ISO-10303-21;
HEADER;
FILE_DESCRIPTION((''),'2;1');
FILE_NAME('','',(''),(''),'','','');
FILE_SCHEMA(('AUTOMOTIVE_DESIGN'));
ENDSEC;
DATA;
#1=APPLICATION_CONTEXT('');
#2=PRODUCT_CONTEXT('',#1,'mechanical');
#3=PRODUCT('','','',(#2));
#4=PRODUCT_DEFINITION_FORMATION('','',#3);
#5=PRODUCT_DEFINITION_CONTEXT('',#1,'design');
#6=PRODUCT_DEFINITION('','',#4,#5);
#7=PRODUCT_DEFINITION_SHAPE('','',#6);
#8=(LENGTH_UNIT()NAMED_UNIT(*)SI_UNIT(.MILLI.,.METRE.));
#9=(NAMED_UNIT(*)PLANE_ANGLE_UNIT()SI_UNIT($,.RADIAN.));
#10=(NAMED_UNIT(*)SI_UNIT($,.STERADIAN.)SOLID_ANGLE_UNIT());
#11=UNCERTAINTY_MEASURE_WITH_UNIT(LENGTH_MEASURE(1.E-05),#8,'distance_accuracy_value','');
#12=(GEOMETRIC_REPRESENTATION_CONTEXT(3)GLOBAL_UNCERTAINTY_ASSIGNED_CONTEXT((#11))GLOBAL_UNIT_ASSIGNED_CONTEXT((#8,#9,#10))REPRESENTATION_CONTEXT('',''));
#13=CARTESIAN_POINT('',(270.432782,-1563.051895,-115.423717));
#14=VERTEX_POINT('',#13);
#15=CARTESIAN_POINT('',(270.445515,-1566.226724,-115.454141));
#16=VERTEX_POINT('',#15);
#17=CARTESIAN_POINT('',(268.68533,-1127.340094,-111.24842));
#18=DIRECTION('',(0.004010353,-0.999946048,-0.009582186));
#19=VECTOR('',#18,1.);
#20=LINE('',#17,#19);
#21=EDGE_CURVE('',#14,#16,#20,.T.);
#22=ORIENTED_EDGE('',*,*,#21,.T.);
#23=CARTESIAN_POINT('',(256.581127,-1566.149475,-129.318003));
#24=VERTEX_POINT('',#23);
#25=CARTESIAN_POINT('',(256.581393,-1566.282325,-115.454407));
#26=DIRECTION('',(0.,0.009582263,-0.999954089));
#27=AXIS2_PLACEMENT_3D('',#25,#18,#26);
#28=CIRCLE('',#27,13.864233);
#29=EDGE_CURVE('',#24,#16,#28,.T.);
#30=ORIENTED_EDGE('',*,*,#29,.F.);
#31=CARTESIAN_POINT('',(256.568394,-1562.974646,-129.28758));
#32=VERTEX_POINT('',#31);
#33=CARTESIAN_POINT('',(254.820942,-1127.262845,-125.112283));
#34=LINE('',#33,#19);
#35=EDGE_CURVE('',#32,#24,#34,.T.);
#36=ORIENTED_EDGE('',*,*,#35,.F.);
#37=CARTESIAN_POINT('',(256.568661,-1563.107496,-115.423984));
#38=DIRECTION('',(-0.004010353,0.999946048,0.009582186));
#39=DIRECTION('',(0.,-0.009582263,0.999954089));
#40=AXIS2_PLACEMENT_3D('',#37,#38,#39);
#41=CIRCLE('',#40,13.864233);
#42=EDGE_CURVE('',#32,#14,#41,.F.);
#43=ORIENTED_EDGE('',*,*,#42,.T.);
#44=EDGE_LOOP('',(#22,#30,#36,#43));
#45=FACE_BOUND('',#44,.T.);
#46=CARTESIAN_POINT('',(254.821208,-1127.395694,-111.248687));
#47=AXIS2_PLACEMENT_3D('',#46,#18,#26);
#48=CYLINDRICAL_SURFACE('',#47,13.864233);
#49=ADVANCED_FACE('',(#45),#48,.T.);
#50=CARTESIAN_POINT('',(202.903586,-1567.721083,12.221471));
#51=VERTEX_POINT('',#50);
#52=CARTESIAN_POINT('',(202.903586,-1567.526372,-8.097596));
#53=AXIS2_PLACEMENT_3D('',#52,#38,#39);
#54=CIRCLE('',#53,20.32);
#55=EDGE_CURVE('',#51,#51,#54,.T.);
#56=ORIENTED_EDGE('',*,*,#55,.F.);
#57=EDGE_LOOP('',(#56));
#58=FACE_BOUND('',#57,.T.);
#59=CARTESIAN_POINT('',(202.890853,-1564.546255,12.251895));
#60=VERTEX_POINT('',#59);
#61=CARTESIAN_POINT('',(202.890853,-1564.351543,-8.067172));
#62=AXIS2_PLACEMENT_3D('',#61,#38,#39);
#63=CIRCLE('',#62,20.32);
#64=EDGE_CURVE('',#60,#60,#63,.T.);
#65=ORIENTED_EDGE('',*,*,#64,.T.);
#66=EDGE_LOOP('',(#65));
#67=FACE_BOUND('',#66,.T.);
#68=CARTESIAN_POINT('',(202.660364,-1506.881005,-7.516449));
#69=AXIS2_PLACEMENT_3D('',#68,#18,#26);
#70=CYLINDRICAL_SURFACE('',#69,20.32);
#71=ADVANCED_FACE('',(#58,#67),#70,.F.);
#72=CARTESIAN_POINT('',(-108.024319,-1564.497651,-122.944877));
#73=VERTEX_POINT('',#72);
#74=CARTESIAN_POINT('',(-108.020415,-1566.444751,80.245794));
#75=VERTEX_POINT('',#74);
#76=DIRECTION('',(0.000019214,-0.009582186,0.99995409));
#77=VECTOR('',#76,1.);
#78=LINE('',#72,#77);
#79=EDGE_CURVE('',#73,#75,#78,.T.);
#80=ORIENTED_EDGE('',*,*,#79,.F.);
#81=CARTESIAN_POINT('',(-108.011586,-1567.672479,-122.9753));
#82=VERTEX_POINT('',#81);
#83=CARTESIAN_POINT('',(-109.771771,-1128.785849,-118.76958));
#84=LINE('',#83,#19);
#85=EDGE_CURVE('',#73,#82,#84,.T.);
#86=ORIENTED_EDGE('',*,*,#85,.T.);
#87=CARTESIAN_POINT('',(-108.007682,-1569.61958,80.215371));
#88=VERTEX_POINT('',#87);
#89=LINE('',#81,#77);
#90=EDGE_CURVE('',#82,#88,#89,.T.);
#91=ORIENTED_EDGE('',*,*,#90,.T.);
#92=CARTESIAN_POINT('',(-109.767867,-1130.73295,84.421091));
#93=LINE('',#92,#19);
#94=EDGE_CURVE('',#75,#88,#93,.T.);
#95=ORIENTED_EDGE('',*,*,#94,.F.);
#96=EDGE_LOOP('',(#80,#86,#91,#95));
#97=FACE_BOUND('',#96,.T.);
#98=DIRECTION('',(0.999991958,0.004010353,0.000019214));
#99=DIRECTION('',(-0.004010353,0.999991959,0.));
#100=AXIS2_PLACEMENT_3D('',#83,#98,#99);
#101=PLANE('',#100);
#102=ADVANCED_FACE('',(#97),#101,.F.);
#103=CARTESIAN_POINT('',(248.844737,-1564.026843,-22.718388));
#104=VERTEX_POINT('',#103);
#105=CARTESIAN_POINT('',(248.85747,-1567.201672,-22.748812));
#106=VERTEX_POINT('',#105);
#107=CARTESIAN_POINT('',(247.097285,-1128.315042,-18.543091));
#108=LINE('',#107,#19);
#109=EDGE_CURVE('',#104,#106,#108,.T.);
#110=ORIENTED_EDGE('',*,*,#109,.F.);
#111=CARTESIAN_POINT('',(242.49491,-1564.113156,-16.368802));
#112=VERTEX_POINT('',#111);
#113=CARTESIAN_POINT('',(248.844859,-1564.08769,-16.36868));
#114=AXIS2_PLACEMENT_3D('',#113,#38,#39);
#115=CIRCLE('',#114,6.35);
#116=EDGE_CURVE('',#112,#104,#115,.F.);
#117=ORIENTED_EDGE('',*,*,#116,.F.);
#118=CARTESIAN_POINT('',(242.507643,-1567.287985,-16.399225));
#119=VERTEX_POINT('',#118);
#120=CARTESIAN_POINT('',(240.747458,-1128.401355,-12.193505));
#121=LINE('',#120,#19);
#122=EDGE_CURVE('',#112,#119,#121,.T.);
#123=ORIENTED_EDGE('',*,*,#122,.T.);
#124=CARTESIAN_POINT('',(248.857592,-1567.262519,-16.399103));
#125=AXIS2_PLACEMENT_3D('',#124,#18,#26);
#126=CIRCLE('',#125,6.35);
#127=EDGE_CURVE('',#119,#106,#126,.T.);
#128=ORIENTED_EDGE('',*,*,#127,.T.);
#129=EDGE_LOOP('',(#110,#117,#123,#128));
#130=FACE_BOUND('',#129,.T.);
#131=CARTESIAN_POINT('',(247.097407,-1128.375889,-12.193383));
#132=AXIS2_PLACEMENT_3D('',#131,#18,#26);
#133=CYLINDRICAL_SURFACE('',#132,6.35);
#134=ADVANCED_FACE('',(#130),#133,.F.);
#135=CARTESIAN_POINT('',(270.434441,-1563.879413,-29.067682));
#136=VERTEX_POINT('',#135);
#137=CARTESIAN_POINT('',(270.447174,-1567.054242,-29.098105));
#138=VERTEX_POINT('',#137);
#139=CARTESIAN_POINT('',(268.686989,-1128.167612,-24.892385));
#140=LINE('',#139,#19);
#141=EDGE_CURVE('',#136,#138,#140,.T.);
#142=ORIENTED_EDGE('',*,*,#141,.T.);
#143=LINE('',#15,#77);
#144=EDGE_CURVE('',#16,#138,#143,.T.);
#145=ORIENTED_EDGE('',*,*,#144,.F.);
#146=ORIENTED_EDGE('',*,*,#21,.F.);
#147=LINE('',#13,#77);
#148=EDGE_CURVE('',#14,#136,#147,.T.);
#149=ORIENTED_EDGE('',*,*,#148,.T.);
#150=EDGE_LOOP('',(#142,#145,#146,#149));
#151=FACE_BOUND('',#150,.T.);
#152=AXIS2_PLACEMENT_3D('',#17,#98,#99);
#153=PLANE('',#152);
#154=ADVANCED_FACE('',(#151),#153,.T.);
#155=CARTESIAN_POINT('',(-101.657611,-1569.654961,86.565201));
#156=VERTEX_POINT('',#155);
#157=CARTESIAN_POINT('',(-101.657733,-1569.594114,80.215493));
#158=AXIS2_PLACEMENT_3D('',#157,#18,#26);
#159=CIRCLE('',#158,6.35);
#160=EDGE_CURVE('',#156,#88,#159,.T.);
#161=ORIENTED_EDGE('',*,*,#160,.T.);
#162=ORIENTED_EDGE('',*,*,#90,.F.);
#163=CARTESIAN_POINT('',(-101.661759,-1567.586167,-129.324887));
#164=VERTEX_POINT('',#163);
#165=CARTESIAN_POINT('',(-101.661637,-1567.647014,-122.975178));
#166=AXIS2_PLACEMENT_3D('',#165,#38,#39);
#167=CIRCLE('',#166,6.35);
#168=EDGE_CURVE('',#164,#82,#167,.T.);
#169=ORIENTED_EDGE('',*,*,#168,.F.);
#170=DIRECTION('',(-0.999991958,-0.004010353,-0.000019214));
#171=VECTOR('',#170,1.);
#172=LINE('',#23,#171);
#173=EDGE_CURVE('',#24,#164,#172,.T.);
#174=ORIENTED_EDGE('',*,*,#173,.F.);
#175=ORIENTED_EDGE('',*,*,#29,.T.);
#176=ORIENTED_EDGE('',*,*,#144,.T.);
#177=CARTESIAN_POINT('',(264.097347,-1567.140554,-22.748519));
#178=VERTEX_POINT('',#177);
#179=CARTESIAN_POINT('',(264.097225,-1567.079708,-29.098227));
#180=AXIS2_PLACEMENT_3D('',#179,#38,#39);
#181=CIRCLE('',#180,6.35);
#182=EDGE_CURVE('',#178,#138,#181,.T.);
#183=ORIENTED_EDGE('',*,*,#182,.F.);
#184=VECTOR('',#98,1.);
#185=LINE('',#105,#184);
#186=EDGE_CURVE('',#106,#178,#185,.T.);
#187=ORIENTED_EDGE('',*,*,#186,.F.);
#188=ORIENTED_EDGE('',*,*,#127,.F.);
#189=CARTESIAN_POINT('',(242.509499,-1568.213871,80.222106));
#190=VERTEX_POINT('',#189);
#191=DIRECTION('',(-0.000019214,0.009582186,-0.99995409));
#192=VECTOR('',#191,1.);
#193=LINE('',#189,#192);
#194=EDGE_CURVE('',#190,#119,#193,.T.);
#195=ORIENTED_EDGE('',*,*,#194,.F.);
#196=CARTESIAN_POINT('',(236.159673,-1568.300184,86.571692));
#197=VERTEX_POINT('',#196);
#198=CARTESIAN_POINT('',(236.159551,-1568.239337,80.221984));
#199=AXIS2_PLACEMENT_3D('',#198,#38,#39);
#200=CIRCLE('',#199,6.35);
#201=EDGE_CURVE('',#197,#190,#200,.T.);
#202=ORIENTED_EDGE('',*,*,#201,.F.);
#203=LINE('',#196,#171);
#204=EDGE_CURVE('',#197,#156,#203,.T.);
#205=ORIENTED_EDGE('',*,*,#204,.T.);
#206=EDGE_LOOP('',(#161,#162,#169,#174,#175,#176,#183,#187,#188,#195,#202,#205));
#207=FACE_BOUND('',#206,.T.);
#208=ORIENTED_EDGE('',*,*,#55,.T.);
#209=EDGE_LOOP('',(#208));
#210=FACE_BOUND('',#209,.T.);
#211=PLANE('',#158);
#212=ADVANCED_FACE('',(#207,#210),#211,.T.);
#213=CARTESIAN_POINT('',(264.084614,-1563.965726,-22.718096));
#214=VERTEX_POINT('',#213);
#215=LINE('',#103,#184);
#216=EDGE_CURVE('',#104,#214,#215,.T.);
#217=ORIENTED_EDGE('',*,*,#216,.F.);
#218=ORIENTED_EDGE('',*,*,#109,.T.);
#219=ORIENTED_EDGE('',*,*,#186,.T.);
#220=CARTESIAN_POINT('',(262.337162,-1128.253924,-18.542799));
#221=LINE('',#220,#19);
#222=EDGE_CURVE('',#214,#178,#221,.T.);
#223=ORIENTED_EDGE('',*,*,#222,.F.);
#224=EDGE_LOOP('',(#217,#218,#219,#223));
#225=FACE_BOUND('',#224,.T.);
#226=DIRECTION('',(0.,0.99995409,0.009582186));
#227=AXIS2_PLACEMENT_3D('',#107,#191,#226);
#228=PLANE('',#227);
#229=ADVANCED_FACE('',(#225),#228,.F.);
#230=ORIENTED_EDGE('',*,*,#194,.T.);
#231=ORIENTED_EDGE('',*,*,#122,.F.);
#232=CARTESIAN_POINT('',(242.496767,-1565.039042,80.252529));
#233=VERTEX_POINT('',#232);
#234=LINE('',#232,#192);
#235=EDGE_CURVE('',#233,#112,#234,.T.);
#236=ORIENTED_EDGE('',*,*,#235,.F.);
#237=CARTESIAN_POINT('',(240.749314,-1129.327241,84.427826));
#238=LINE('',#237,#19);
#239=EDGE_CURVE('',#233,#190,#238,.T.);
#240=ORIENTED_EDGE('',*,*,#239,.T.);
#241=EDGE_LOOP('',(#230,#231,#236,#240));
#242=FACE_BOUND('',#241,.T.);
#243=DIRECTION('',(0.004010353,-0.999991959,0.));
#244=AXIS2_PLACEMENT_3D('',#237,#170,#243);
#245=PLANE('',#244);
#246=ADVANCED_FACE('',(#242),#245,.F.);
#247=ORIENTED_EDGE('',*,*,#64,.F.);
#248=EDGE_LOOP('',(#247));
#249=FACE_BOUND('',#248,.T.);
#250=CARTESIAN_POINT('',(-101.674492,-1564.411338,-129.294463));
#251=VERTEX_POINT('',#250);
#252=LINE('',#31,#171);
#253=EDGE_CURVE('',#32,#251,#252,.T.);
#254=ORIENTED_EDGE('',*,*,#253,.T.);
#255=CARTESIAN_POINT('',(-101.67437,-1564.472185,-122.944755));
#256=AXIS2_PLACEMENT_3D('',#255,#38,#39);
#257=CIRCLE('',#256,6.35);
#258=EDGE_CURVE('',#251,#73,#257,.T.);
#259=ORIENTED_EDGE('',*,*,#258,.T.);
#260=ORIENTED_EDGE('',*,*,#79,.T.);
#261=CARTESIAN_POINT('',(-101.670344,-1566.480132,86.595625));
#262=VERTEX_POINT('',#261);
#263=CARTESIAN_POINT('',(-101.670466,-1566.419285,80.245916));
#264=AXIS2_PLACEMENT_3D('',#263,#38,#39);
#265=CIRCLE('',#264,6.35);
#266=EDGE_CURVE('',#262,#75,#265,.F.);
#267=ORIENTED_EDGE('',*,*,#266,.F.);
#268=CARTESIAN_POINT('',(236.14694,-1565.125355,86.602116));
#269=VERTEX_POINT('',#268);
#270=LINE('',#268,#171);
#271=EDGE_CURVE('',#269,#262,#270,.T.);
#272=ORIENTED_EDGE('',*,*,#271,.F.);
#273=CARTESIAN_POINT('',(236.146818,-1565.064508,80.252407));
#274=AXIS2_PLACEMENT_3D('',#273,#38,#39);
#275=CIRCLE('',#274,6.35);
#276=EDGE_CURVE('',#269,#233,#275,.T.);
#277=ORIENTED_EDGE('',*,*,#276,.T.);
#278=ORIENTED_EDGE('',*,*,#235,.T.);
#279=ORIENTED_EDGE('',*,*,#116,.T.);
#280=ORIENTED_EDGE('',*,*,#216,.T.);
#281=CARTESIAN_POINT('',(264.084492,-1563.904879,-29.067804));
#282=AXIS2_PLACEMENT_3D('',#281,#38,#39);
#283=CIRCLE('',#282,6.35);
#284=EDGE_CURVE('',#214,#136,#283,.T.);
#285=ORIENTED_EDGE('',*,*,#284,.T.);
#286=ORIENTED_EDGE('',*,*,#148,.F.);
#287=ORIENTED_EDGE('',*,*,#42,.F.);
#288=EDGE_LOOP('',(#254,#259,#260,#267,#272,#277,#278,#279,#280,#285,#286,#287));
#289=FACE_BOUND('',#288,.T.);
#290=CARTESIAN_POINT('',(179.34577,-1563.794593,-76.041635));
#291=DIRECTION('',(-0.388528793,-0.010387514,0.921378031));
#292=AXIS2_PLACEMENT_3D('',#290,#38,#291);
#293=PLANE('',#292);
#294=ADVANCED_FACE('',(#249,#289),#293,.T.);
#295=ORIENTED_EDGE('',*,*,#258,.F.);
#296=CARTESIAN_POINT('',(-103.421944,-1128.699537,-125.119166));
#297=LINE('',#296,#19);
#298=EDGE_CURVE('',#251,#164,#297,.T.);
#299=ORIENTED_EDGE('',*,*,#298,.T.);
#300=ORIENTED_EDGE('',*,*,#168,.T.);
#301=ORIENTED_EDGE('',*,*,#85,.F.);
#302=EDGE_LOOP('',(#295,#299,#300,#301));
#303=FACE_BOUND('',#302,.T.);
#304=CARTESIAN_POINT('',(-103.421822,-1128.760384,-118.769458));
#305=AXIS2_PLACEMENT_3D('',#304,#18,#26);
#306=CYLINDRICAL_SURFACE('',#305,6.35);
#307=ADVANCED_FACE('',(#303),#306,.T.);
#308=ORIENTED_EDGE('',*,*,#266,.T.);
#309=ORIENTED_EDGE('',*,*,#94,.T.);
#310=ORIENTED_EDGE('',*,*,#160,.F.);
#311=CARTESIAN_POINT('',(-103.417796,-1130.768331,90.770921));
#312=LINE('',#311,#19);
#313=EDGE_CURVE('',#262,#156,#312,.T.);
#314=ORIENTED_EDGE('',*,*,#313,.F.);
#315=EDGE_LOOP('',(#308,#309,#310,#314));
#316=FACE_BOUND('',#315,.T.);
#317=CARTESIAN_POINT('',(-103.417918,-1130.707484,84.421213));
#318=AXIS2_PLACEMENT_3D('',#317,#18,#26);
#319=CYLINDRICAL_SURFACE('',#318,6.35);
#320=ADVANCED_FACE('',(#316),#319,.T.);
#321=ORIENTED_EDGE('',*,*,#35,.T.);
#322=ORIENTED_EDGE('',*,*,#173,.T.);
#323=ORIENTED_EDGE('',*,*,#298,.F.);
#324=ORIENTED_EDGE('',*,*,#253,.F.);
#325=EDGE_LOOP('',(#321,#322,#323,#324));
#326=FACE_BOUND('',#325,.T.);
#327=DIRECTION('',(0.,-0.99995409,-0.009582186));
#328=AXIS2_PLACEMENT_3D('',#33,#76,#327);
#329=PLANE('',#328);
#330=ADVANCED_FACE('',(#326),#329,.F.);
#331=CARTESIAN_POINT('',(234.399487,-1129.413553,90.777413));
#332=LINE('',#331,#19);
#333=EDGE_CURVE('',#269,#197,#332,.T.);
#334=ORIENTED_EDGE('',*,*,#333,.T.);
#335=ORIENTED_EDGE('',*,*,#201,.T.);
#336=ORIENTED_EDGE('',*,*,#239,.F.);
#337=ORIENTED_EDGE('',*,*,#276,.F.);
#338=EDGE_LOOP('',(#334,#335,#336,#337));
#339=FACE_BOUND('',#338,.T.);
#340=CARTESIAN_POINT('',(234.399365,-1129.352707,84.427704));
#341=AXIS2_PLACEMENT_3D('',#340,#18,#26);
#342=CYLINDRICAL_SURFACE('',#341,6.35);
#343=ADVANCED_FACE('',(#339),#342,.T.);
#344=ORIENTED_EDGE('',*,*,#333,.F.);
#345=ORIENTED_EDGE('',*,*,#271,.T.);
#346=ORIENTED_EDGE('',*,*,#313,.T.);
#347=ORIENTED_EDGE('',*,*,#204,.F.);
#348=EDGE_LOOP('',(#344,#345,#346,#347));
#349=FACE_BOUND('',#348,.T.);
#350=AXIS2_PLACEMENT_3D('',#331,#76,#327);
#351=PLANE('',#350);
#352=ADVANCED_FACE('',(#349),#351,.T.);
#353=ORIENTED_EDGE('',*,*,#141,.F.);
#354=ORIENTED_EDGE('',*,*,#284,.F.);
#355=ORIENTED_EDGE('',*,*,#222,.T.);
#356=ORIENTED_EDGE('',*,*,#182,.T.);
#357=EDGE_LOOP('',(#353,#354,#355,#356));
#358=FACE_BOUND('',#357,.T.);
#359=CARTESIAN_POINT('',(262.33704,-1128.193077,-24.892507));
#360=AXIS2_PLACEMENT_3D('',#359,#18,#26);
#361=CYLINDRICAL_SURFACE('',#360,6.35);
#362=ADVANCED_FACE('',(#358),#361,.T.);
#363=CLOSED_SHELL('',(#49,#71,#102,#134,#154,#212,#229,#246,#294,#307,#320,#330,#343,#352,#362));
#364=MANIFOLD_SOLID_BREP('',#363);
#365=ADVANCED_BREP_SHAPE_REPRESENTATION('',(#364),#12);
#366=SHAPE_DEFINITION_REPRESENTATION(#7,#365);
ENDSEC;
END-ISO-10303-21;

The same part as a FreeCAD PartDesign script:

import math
import FreeCAD as App
import Part
import Sketcher

V = App.Vector
Q = App.Units.Quantity

doc = App.newDocument("Part")
body = doc.addObject("PartDesign::Body", "Body")

sketch1 = doc.addObject("Sketcher::SketchObject", "Sketch")
body.addObject(sketch1)
sketch1.Placement = App.Placement(V(3.144869, -1568.333108, -7.514233), App.Rotation(V(0.999991958, 0.004010353, 0.000019214), V(-0.000019215, 0.009582186, -0.999954089), V(-0.004010353, 0.999946048, 0.009582186), "ZXY"))
sketch1.addGeometry([
    Part.LineSegment(V(253, 122, 0), V(-105, 122, 0)),
    Part.ArcOfCircle(Part.Circle(V(-105, 115, 0), V(0, 0, 1), 6), math.radians(90), math.radians(180)),
    Part.LineSegment(V(-111, 115, 0), V(-111, -88, 0)),
    Part.ArcOfCircle(Part.Circle(V(-105, -88, 0), V(0, 0, 1), 6), math.radians(180), math.radians(270)),
    Part.LineSegment(V(-105, -94, 0), V(233, -94, 0)),
    Part.ArcOfCircle(Part.Circle(V(233, -88, 0), V(0, 0, 1), 6), math.radians(-90), math.radians(0)),
    Part.LineSegment(V(239, -88, 0), V(239, 9, 0)),
    Part.ArcOfCircle(Part.Circle(V(246, 9, 0), V(0, 0, 1), 6), math.radians(90), math.radians(180)),
    Part.LineSegment(V(246, 15, 0), V(261, 15, 0)),
    Part.ArcOfCircle(Part.Circle(V(261, 22, 0), V(0, 0, 1), 6), math.radians(-90), math.radians(0)),
    Part.LineSegment(V(267, 22, 0), V(267, 108, 0)),
    Part.ArcOfCircle(Part.Circle(V(253, 108, 0), V(0, 0, 1), 14), math.radians(0), math.radians(90)),
], False)
sketch1.addConstraint([
    Sketcher.Constraint("Tangent", 0, 2, 1, 1),
    Sketcher.Constraint("Tangent", 1, 2, 2, 1),
    Sketcher.Constraint("Tangent", 2, 2, 3, 1),
    Sketcher.Constraint("Tangent", 3, 2, 4, 1),
    Sketcher.Constraint("Tangent", 4, 2, 5, 1),
    Sketcher.Constraint("Tangent", 5, 2, 6, 1),
    Sketcher.Constraint("Tangent", 6, 2, 7, 2),
    Sketcher.Constraint("Tangent", 7, 1, 8, 1),
    Sketcher.Constraint("Tangent", 8, 2, 9, 1),
    Sketcher.Constraint("Tangent", 9, 2, 10, 1),
    Sketcher.Constraint("Tangent", 10, 2, 11, 1),
    Sketcher.Constraint("Tangent", 11, 2, 0, 1),
    Sketcher.Constraint("Horizontal", 0),
    Sketcher.Constraint("Vertical", 2),
    Sketcher.Constraint("Horizontal", 4),
    Sketcher.Constraint("Vertical", 6),
    Sketcher.Constraint("Horizontal", 8),
    Sketcher.Constraint("Vertical", 10),
    Sketcher.Constraint("Equal", 1, 3),
    Sketcher.Constraint("Equal", 3, 5),
    Sketcher.Constraint("Equal", 5, 7),
    Sketcher.Constraint("Equal", 7, 9),
    Sketcher.Constraint("DistanceY", 2, 2, 2, 1, Q("8 in")),
    Sketcher.Constraint("Radius", 1, Q("0.25 in")),
    Sketcher.Constraint("DistanceX", 4, 1, 4, 2, Q("13.3 in")),
    Sketcher.Constraint("DistanceX", 8, 1, 8, 2, Q("0.6 in")),
    Sketcher.Constraint("DistanceY", 10, 1, 10, 2, Q("3.4 in")),
    Sketcher.Constraint("DistanceY", -1, 1, 7, 1, Q("0.6 in")),
    Sketcher.Constraint("Radius", 11, Q("13.864233 mm")),
    Sketcher.Constraint("DistanceX", 1, 3, -1, 1, Q("104.805131 mm")),
])
pad1 = doc.addObject("PartDesign::Pad", "Pad")
body.addObject(pad1)
pad1.Profile = sketch1
pad1.Length = Q("0.125 in")

sketch2 = doc.addObject("Sketcher::SketchObject", "Sketch001")
body.addObject(sketch2)
sketch2.Placement = App.Placement(V(3.157602, -1568.332765, -7.544655), App.Rotation(V(0.999991958, 0.004010353, 0.000019214), V(-0.000019215, 0.009582186, -0.999954089), V(-0.004010353, 0.999946048, 0.009582186), "ZXY"))
sketch2.addGeometry(Part.Circle(V(200, 1, 0), V(0, 0, 1), 20), False)
sketch2.addConstraint([
    Sketcher.Constraint("Diameter", 0, Q("1.6 in")),
    Sketcher.Constraint("DistanceX", -1, 1, 0, 3, Q("199.747601 mm")),
    Sketcher.Constraint("DistanceY", -1, 1, 0, 3, Q("0.556804 mm")),
])
pocket1 = doc.addObject("PartDesign::Pocket", "Pocket")
body.addObject(pocket1)
pocket1.Profile = sketch2
pocket1.Length = Q("0.125 in")
pocket1.Reversed = True

doc.recompute()
